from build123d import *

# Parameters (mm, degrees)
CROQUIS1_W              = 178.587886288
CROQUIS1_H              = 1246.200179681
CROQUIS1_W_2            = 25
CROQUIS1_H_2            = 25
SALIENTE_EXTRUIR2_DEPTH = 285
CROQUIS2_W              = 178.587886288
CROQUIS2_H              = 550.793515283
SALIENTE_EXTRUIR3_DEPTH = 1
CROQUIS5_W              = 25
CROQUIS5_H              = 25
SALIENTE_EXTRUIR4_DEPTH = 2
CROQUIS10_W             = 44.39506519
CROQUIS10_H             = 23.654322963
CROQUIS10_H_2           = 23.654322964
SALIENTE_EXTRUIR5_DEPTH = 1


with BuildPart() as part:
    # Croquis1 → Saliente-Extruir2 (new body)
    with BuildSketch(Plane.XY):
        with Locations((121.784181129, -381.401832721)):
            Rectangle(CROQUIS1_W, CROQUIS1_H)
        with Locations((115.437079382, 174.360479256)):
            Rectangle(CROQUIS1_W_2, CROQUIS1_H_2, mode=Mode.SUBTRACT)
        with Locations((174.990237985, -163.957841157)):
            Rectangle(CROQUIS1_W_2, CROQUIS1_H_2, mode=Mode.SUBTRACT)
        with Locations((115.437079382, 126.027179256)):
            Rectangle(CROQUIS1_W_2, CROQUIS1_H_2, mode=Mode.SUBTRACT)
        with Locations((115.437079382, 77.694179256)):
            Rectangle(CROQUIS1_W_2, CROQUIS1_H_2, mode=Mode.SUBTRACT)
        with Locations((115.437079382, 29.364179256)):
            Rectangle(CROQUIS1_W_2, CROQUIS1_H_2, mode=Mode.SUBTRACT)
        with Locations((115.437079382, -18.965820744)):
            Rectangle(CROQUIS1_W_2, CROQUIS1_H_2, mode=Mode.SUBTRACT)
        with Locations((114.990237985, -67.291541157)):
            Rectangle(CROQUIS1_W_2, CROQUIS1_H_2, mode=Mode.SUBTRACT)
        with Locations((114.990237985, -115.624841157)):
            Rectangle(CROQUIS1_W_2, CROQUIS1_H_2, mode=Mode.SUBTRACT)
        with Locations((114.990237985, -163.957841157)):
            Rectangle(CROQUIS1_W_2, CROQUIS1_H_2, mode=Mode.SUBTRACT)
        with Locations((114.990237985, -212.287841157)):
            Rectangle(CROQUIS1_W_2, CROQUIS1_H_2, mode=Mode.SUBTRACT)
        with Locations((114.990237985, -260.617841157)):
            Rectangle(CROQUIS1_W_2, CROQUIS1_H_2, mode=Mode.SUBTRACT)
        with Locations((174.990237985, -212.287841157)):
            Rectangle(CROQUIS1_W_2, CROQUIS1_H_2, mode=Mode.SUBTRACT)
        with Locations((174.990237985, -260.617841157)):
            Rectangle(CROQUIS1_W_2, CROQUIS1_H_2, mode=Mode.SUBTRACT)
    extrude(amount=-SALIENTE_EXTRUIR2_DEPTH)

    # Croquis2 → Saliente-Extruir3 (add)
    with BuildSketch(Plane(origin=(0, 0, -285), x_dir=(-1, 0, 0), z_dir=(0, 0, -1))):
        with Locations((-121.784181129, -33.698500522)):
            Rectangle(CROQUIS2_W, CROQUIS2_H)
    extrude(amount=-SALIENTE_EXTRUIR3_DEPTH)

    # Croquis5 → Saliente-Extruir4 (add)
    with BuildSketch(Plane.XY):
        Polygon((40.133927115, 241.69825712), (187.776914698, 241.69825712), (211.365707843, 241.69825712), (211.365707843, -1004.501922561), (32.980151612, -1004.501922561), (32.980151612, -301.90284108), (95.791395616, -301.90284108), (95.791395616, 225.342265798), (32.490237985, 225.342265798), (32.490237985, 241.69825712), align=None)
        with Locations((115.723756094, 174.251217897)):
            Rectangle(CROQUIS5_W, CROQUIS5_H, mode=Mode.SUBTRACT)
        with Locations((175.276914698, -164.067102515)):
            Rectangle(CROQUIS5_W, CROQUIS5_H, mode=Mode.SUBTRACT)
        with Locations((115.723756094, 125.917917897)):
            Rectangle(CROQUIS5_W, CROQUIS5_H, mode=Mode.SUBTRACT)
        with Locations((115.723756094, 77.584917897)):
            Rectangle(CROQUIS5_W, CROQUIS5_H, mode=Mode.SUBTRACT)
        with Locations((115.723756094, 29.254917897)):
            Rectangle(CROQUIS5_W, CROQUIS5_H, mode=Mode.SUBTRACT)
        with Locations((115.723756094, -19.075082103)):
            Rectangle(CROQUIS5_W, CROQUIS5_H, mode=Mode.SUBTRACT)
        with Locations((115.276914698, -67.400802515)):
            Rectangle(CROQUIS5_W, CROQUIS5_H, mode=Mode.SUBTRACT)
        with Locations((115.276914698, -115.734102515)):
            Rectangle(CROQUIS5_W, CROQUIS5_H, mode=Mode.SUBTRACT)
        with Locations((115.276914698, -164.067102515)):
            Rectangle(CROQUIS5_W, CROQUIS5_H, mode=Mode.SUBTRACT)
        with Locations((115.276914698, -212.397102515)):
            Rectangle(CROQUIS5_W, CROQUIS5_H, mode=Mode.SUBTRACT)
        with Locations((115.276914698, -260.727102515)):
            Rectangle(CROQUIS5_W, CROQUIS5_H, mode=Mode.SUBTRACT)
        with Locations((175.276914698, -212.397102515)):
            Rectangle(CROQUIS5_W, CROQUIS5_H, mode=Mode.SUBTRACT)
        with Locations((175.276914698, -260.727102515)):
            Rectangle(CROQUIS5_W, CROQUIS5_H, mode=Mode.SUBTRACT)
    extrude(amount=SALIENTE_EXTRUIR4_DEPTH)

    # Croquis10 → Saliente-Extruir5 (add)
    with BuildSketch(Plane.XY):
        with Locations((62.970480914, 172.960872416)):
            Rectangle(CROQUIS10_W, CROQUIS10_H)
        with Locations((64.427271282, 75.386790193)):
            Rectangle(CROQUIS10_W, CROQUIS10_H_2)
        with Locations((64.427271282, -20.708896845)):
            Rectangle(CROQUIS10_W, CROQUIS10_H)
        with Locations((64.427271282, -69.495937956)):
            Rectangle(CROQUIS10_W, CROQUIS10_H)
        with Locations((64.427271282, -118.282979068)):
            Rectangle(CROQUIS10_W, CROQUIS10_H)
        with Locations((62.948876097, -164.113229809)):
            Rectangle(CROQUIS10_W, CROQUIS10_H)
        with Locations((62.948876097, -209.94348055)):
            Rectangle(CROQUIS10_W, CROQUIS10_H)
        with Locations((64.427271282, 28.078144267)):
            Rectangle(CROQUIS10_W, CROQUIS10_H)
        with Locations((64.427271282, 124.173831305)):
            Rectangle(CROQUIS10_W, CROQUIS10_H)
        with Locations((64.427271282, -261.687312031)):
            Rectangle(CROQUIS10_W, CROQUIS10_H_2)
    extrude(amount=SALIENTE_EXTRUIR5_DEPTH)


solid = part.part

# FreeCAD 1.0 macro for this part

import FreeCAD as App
import Part
import Sketcher
from FreeCAD import Vector
Q = App.Units.Quantity

doc = App.newDocument("Part")
body = doc.addObject("PartDesign::Body", "Body")

# Sketch on XY plane
sketch1 = body.newObject("Sketcher::SketchObject", "Sketch")
sketch1.AttachmentSupport = (doc.getObject("XY_Plane"), [""])
sketch1.MapMode = "FlatFace"
sketch1.addGeometry(Part.LineSegment(Vector(32, 242, 0), Vector(32, -1005, 0)), False)
sketch1.addGeometry(Part.LineSegment(Vector(32, -1005, 0), Vector(211, -1005, 0)), False)
sketch1.addGeometry(Part.LineSegment(Vector(211, -1005, 0), Vector(211, 242, 0)), False)
sketch1.addGeometry(Part.LineSegment(Vector(211, 242, 0), Vector(32, 242, 0)), False)
sketch1.addGeometry(Part.LineSegment(Vector(127, -273, 0), Vector(102, -273, 0)), False)
sketch1.addGeometry(Part.LineSegment(Vector(102, -273, 0), Vector(102, -248, 0)), False)
sketch1.addGeometry(Part.LineSegment(Vector(102, -248, 0), Vector(127, -248, 0)), False)
sketch1.addGeometry(Part.LineSegment(Vector(127, -248, 0), Vector(127, -273, 0)), False)
sketch1.addGeometry(Part.LineSegment(Vector(127, -225, 0), Vector(102, -225, 0)), False)
sketch1.addGeometry(Part.LineSegment(Vector(102, -225, 0), Vector(102, -200, 0)), False)
sketch1.addGeometry(Part.LineSegment(Vector(102, -200, 0), Vector(127, -200, 0)), False)
sketch1.addGeometry(Part.LineSegment(Vector(127, -200, 0), Vector(127, -225, 0)), False)
sketch1.addGeometry(Part.LineSegment(Vector(127, -176, 0), Vector(102, -176, 0)), False)
sketch1.addGeometry(Part.LineSegment(Vector(102, -176, 0), Vector(102, -151, 0)), False)
sketch1.addGeometry(Part.LineSegment(Vector(102, -151, 0), Vector(127, -151, 0)), False)
sketch1.addGeometry(Part.LineSegment(Vector(127, -151, 0), Vector(127, -176, 0)), False)
sketch1.addGeometry(Part.LineSegment(Vector(127, -128, 0), Vector(102, -128, 0)), False)
sketch1.addGeometry(Part.LineSegment(Vector(102, -128, 0), Vector(102, -103, 0)), False)
sketch1.addGeometry(Part.LineSegment(Vector(102, -103, 0), Vector(127, -103, 0)), False)
sketch1.addGeometry(Part.LineSegment(Vector(127, -103, 0), Vector(127, -128, 0)), False)
sketch1.addGeometry(Part.LineSegment(Vector(127, -80, 0), Vector(102, -80, 0)), False)
sketch1.addGeometry(Part.LineSegment(Vector(102, -80, 0), Vector(102, -55, 0)), False)
sketch1.addGeometry(Part.LineSegment(Vector(102, -55, 0), Vector(127, -55, 0)), False)
sketch1.addGeometry(Part.LineSegment(Vector(127, -55, 0), Vector(127, -80, 0)), False)
sketch1.addGeometry(Part.LineSegment(Vector(187, -273, 0), Vector(162, -273, 0)), False)
sketch1.addGeometry(Part.LineSegment(Vector(162, -273, 0), Vector(162, -248, 0)), False)
sketch1.addGeometry(Part.LineSegment(Vector(162, -248, 0), Vector(187, -248, 0)), False)
sketch1.addGeometry(Part.LineSegment(Vector(187, -248, 0), Vector(187, -273, 0)), False)
sketch1.addGeometry(Part.LineSegment(Vector(187, -225, 0), Vector(162, -225, 0)), False)
sketch1.addGeometry(Part.LineSegment(Vector(162, -225, 0), Vector(162, -200, 0)), False)
sketch1.addGeometry(Part.LineSegment(Vector(162, -200, 0), Vector(187, -200, 0)), False)
sketch1.addGeometry(Part.LineSegment(Vector(187, -200, 0), Vector(187, -225, 0)), False)
sketch1.addGeometry(Part.LineSegment(Vector(187, -176, 0), Vector(162, -176, 0)), False)
sketch1.addGeometry(Part.LineSegment(Vector(162, -176, 0), Vector(162, -151, 0)), False)
sketch1.addGeometry(Part.LineSegment(Vector(162, -151, 0), Vector(187, -151, 0)), False)
sketch1.addGeometry(Part.LineSegment(Vector(187, -151, 0), Vector(187, -176, 0)), False)
sketch1.addGeometry(Part.LineSegment(Vector(128, -31, 0), Vector(103, -31, 0)), False)
sketch1.addGeometry(Part.LineSegment(Vector(103, -31, 0), Vector(103, -6, 0)), False)
sketch1.addGeometry(Part.LineSegment(Vector(103, -6, 0), Vector(128, -6, 0)), False)
sketch1.addGeometry(Part.LineSegment(Vector(128, -6, 0), Vector(128, -31, 0)), False)
sketch1.addGeometry(Part.LineSegment(Vector(128, 17, 0), Vector(103, 17, 0)), False)
sketch1.addGeometry(Part.LineSegment(Vector(103, 17, 0), Vector(103, 42, 0)), False)
sketch1.addGeometry(Part.LineSegment(Vector(103, 42, 0), Vector(128, 42, 0)), False)
sketch1.addGeometry(Part.LineSegment(Vector(128, 42, 0), Vector(128, 17, 0)), False)
sketch1.addGeometry(Part.LineSegment(Vector(128, 65, 0), Vector(103, 65, 0)), False)
sketch1.addGeometry(Part.LineSegment(Vector(103, 65, 0), Vector(103, 90, 0)), False)
sketch1.addGeometry(Part.LineSegment(Vector(103, 90, 0), Vector(128, 90, 0)), False)
sketch1.addGeometry(Part.LineSegment(Vector(128, 90, 0), Vector(128, 65, 0)), False)
sketch1.addGeometry(Part.LineSegment(Vector(128, 114, 0), Vector(103, 114, 0)), False)
sketch1.addGeometry(Part.LineSegment(Vector(103, 114, 0), Vector(103, 139, 0)), False)
sketch1.addGeometry(Part.LineSegment(Vector(103, 139, 0), Vector(128, 139, 0)), False)
sketch1.addGeometry(Part.LineSegment(Vector(128, 139, 0), Vector(128, 114, 0)), False)
sketch1.addGeometry(Part.LineSegment(Vector(128, 162, 0), Vector(103, 162, 0)), False)
sketch1.addGeometry(Part.LineSegment(Vector(103, 162, 0), Vector(103, 187, 0)), False)
sketch1.addGeometry(Part.LineSegment(Vector(103, 187, 0), Vector(128, 187, 0)), False)
sketch1.addGeometry(Part.LineSegment(Vector(128, 187, 0), Vector(128, 162, 0)), False)
sketch1.addConstraint(Sketcher.Constraint("Coincident", 0, 2, 1, 1))
sketch1.addConstraint(Sketcher.Constraint("Coincident", 1, 2, 2, 1))
sketch1.addConstraint(Sketcher.Constraint("Coincident", 2, 2, 3, 1))
sketch1.addConstraint(Sketcher.Constraint("Coincident", 3, 2, 0, 1))
sketch1.addConstraint(Sketcher.Constraint("Coincident", 4, 2, 5, 1))
sketch1.addConstraint(Sketcher.Constraint("Coincident", 5, 2, 6, 1))
sketch1.addConstraint(Sketcher.Constraint("Coincident", 6, 2, 7, 1))
sketch1.addConstraint(Sketcher.Constraint("Coincident", 7, 2, 4, 1))
sketch1.addConstraint(Sketcher.Constraint("Coincident", 8, 2, 9, 1))
sketch1.addConstraint(Sketcher.Constraint("Coincident", 9, 2, 10, 1))
sketch1.addConstraint(Sketcher.Constraint("Coincident", 10, 2, 11, 1))
sketch1.addConstraint(Sketcher.Constraint("Coincident", 11, 2, 8, 1))
sketch1.addConstraint(Sketcher.Constraint("Coincident", 12, 2, 13, 1))
sketch1.addConstraint(Sketcher.Constraint("Coincident", 13, 2, 14, 1))
sketch1.addConstraint(Sketcher.Constraint("Coincident", 14, 2, 15, 1))
sketch1.addConstraint(Sketcher.Constraint("Coincident", 15, 2, 12, 1))
sketch1.addConstraint(Sketcher.Constraint("Coincident", 16, 2, 17, 1))
sketch1.addConstraint(Sketcher.Constraint("Coincident", 17, 2, 18, 1))
sketch1.addConstraint(Sketcher.Constraint("Coincident", 18, 2, 19, 1))
sketch1.addConstraint(Sketcher.Constraint("Coincident", 19, 2, 16, 1))
sketch1.addConstraint(Sketcher.Constraint("Coincident", 20, 2, 21, 1))
sketch1.addConstraint(Sketcher.Constraint("Coincident", 21, 2, 22, 1))
sketch1.addConstraint(Sketcher.Constraint("Coincident", 22, 2, 23, 1))
sketch1.addConstraint(Sketcher.Constraint("Coincident", 23, 2, 20, 1))
sketch1.addConstraint(Sketcher.Constraint("Coincident", 24, 2, 25, 1))
sketch1.addConstraint(Sketcher.Constraint("Coincident", 25, 2, 26, 1))
sketch1.addConstraint(Sketcher.Constraint("Coincident", 26, 2, 27, 1))
sketch1.addConstraint(Sketcher.Constraint("Coincident", 27, 2, 24, 1))
sketch1.addConstraint(Sketcher.Constraint("Coincident", 28, 2, 29, 1))
sketch1.addConstraint(Sketcher.Constraint("Coincident", 29, 2, 30, 1))
sketch1.addConstraint(Sketcher.Constraint("Coincident", 30, 2, 31, 1))
sketch1.addConstraint(Sketcher.Constraint("Coincident", 31, 2, 28, 1))
sketch1.addConstraint(Sketcher.Constraint("Coincident", 32, 2, 33, 1))
sketch1.addConstraint(Sketcher.Constraint("Coincident", 33, 2, 34, 1))
sketch1.addConstraint(Sketcher.Constraint("Coincident", 34, 2, 35, 1))
sketch1.addConstraint(Sketcher.Constraint("Coincident", 35, 2, 32, 1))
sketch1.addConstraint(Sketcher.Constraint("Coincident", 36, 2, 37, 1))
sketch1.addConstraint(Sketcher.Constraint("Coincident", 37, 2, 38, 1))
sketch1.addConstraint(Sketcher.Constraint("Coincident", 38, 2, 39, 1))
sketch1.addConstraint(Sketcher.Constraint("Coincident", 39, 2, 36, 1))
sketch1.addConstraint(Sketcher.Constraint("Coincident", 40, 2, 41, 1))
sketch1.addConstraint(Sketcher.Constraint("Coincident", 41, 2, 42, 1))
sketch1.addConstraint(Sketcher.Constraint("Coincident", 42, 2, 43, 1))
sketch1.addConstraint(Sketcher.Constraint("Coincident", 43, 2, 40, 1))
sketch1.addConstraint(Sketcher.Constraint("Coincident", 44, 2, 45, 1))
sketch1.addConstraint(Sketcher.Constraint("Coincident", 45, 2, 46, 1))
sketch1.addConstraint(Sketcher.Constraint("Coincident", 46, 2, 47, 1))
sketch1.addConstraint(Sketcher.Constraint("Coincident", 47, 2, 44, 1))
sketch1.addConstraint(Sketcher.Constraint("Coincident", 48, 2, 49, 1))
sketch1.addConstraint(Sketcher.Constraint("Coincident", 49, 2, 50, 1))
sketch1.addConstraint(Sketcher.Constraint("Coincident", 50, 2, 51, 1))
sketch1.addConstraint(Sketcher.Constraint("Coincident", 51, 2, 48, 1))
sketch1.addConstraint(Sketcher.Constraint("Coincident", 52, 2, 53, 1))
sketch1.addConstraint(Sketcher.Constraint("Coincident", 53, 2, 54, 1))
sketch1.addConstraint(Sketcher.Constraint("Coincident", 54, 2, 55, 1))
sketch1.addConstraint(Sketcher.Constraint("Coincident", 55, 2, 52, 1))
sketch1.addConstraint(Sketcher.Constraint("Vertical", 0))
sketch1.addConstraint(Sketcher.Constraint("Horizontal", 1))
sketch1.addConstraint(Sketcher.Constraint("Vertical", 2))
sketch1.addConstraint(Sketcher.Constraint("Horizontal", 3))
sketch1.addConstraint(Sketcher.Constraint("Horizontal", 4))
sketch1.addConstraint(Sketcher.Constraint("Vertical", 5))
sketch1.addConstraint(Sketcher.Constraint("Horizontal", 6))
sketch1.addConstraint(Sketcher.Constraint("Vertical", 7))
sketch1.addConstraint(Sketcher.Constraint("Horizontal", 8))
sketch1.addConstraint(Sketcher.Constraint("Vertical", 9))
sketch1.addConstraint(Sketcher.Constraint("Horizontal", 10))
sketch1.addConstraint(Sketcher.Constraint("Vertical", 11))
sketch1.addConstraint(Sketcher.Constraint("Horizontal", 12))
sketch1.addConstraint(Sketcher.Constraint("Vertical", 13))
sketch1.addConstraint(Sketcher.Constraint("Horizontal", 14))
sketch1.addConstraint(Sketcher.Constraint("Vertical", 15))
sketch1.addConstraint(Sketcher.Constraint("Horizontal", 16))
sketch1.addConstraint(Sketcher.Constraint("Vertical", 17))
sketch1.addConstraint(Sketcher.Constraint("Horizontal", 18))
sketch1.addConstraint(Sketcher.Constraint("Vertical", 19))
sketch1.addConstraint(Sketcher.Constraint("Horizontal", 20))
sketch1.addConstraint(Sketcher.Constraint("Vertical", 21))
sketch1.addConstraint(Sketcher.Constraint("Horizontal", 22))
sketch1.addConstraint(Sketcher.Constraint("Vertical", 23))
sketch1.addConstraint(Sketcher.Constraint("Horizontal", 24))
sketch1.addConstraint(Sketcher.Constraint("Vertical", 25))
sketch1.addConstraint(Sketcher.Constraint("Horizontal", 26))
sketch1.addConstraint(Sketcher.Constraint("Vertical", 27))
sketch1.addConstraint(Sketcher.Constraint("Horizontal", 28))
sketch1.addConstraint(Sketcher.Constraint("Vertical", 29))
sketch1.addConstraint(Sketcher.Constraint("Horizontal", 30))
sketch1.addConstraint(Sketcher.Constraint("Vertical", 31))
sketch1.addConstraint(Sketcher.Constraint("Horizontal", 32))
sketch1.addConstraint(Sketcher.Constraint("Vertical", 33))
sketch1.addConstraint(Sketcher.Constraint("Horizontal", 34))
sketch1.addConstraint(Sketcher.Constraint("Vertical", 35))
sketch1.addConstraint(Sketcher.Constraint("Horizontal", 36))
sketch1.addConstraint(Sketcher.Constraint("Vertical", 37))
sketch1.addConstraint(Sketcher.Constraint("Horizontal", 38))
sketch1.addConstraint(Sketcher.Constraint("Vertical", 39))
sketch1.addConstraint(Sketcher.Constraint("Horizontal", 40))
sketch1.addConstraint(Sketcher.Constraint("Vertical", 41))
sketch1.addConstraint(Sketcher.Constraint("Horizontal", 42))
sketch1.addConstraint(Sketcher.Constraint("Vertical", 43))
sketch1.addConstraint(Sketcher.Constraint("Horizontal", 44))
sketch1.addConstraint(Sketcher.Constraint("Vertical", 45))
sketch1.addConstraint(Sketcher.Constraint("Horizontal", 46))
sketch1.addConstraint(Sketcher.Constraint("Vertical", 47))
sketch1.addConstraint(Sketcher.Constraint("Horizontal", 48))
sketch1.addConstraint(Sketcher.Constraint("Vertical", 49))
sketch1.addConstraint(Sketcher.Constraint("Horizontal", 50))
sketch1.addConstraint(Sketcher.Constraint("Vertical", 51))
sketch1.addConstraint(Sketcher.Constraint("Horizontal", 52))
sketch1.addConstraint(Sketcher.Constraint("Vertical", 53))
sketch1.addConstraint(Sketcher.Constraint("Horizontal", 54))
sketch1.addConstraint(Sketcher.Constraint("Vertical", 55))
sketch1.addConstraint(Sketcher.Constraint("Horizontal", 7, 2, 24, 2))
sketch1.addConstraint(Sketcher.Constraint("Horizontal", 6, 2, 25, 2))
sketch1.addConstraint(Sketcher.Constraint("Horizontal", 11, 2, 28, 2))
sketch1.addConstraint(Sketcher.Constraint("Horizontal", 10, 2, 29, 2))
sketch1.addConstraint(Sketcher.Constraint("Horizontal", 15, 2, 32, 2))
sketch1.addConstraint(Sketcher.Constraint("Horizontal", 14, 2, 33, 2))
sketch1.addConstraint(Sketcher.Constraint("Vertical", 5, 2, 8, 2))
sketch1.addConstraint(Sketcher.Constraint("Vertical", 7, 2, 10, 2))
sketch1.addConstraint(Sketcher.Constraint("Vertical", 9, 2, 12, 2))
sketch1.addConstraint(Sketcher.Constraint("Vertical", 11, 2, 14, 2))
sketch1.addConstraint(Sketcher.Constraint("Vertical", 13, 2, 16, 2))
sketch1.addConstraint(Sketcher.Constraint("Vertical", 15, 2, 18, 2))
sketch1.addConstraint(Sketcher.Constraint("Vertical", 17, 2, 20, 2))
sketch1.addConstraint(Sketcher.Constraint("Vertical", 19, 2, 22, 2))
sketch1.addConstraint(Sketcher.Constraint("Vertical", 25, 2, 28, 2))
sketch1.addConstraint(Sketcher.Constraint("Vertical", 27, 2, 30, 2))
sketch1.addConstraint(Sketcher.Constraint("Vertical", 29, 2, 32, 2))
sketch1.addConstraint(Sketcher.Constraint("Vertical", 31, 2, 34, 2))
sketch1.addConstraint(Sketcher.Constraint("Vertical", 37, 2, 40, 2))
sketch1.addConstraint(Sketcher.Constraint("Vertical", 39, 2, 42, 2))
sketch1.addConstraint(Sketcher.Constraint("Vertical", 41, 2, 44, 2))
sketch1.addConstraint(Sketcher.Constraint("Vertical", 43, 2, 46, 2))
sketch1.addConstraint(Sketcher.Constraint("Vertical", 45, 2, 48, 2))
sketch1.addConstraint(Sketcher.Constraint("Vertical", 47, 2, 50, 2))
sketch1.addConstraint(Sketcher.Constraint("Vertical", 49, 2, 52, 2))
sketch1.addConstraint(Sketcher.Constraint("Vertical", 51, 2, 54, 2))
sketch1.addConstraint(Sketcher.Constraint("Equal", 22, 24))
sketch1.addConstraint(Sketcher.Constraint("Equal", 34, 36))
sketch1.addConstraint(Sketcher.Constraint("Equal", 54, 5))
sketch1.addConstraint(Sketcher.Constraint("Equal", 7, 9))
sketch1.addConstraint(Sketcher.Constraint("Equal", 11, 13))
sketch1.addConstraint(Sketcher.Constraint("Equal", 15, 17))
sketch1.addConstraint(Sketcher.Constraint("Equal", 19, 21))
sketch1.addConstraint(Sketcher.Constraint("Equal", 35, 37))
sketch1.addConstraint(Sketcher.Constraint("Equal", 39, 41))
sketch1.addConstraint(Sketcher.Constraint("Equal", 43, 45))
sketch1.addConstraint(Sketcher.Constraint("Equal", 47, 49))
sketch1.addConstraint(Sketcher.Constraint("Equal", 51, 53))
sketch1.addConstraint(Sketcher.Constraint("DistanceX", 4, 2, 4, 1, Q("25 mm")))
sketch1.addConstraint(Sketcher.Constraint("DistanceX", 3, 2, 4, 2, Q("70 mm")))
sketch1.addConstraint(Sketcher.Constraint("DistanceX", 7, 2, 24, 2, Q("35 mm")))
sketch1.addConstraint(Sketcher.Constraint("DistanceY", 5, 2, 8, 2, Q("23.33 mm")))
sketch1.addConstraint(Sketcher.Constraint("DistanceY", 9, 2, 12, 2, Q("23.33 mm")))
sketch1.addConstraint(Sketcher.Constraint("DistanceY", 37, 2, 40, 2, Q("23.33 mm")))
sketch1.addConstraint(Sketcher.Constraint("DistanceY", 41, 2, 44, 2, Q("23.33 mm")))
sketch1.addConstraint(Sketcher.Constraint("DistanceY", 13, 2, 16, 2, Q("23.333 mm")))
sketch1.addConstraint(Sketcher.Constraint("DistanceY", 45, 2, 48, 2, Q("23.333 mm")))
sketch1.addConstraint(Sketcher.Constraint("DistanceY", 0, 2, 0, 1, Q("1246.20018 mm")))
sketch1.addConstraint(Sketcher.Constraint("DistanceY", 4, 2, 3, 2, Q("514.816098 mm")))
sketch1.addConstraint(Sketcher.Constraint("DistanceY", 17, 2, 20, 2, Q("23.3333 mm")))
sketch1.addConstraint(Sketcher.Constraint("DistanceY", 49, 2, 52, 2, Q("23.3333 mm")))
sketch1.addConstraint(Sketcher.Constraint("DistanceX", 1, 1, 1, 2, Q("178.587886 mm")))
sketch1.addConstraint(Sketcher.Constraint("DistanceY", 4, 2, -1, 1, Q("273.117841 mm")))
sketch1.addConstraint(Sketcher.Constraint("DistanceX", -1, 1, 36, 2, Q("102.937079 mm")))
sketch1.addConstraint(Sketcher.Constraint("DistanceY", 36, 2, -1, 1, Q("31.465821 mm")))
sketch1.addConstraint(Sketcher.Constraint("DistanceX", 21, 2, 36, 2, Q("0.446841 mm")))
pad1 = body.newObject("PartDesign::Pad", "Pad")
pad1.Profile = sketch1
pad1.Length = 285
pad1.Reversed = True

# Sketch on XY plane
sketch2 = body.newObject("Sketcher::SketchObject", "Sketch001")
sketch2.AttachmentSupport = (doc.getObject("XY_Plane"), [""])
sketch2.MapMode = "FlatFace"
sketch2.AttachmentOffset = App.Placement(Vector(0, 0, -285), App.Rotation())
sketch2.addGeometry(Part.LineSegment(Vector(211, 242, 0), Vector(211, -309, 0)), False)
sketch2.addGeometry(Part.LineSegment(Vector(211, -309, 0), Vector(32, -309, 0)), False)
sketch2.addGeometry(Part.LineSegment(Vector(32, -309, 0), Vector(32, 242, 0)), False)
sketch2.addGeometry(Part.LineSegment(Vector(32, 242, 0), Vector(211, 242, 0)), False)
sketch2.addConstraint(Sketcher.Constraint("Coincident", 0, 2, 1, 1))
sketch2.addConstraint(Sketcher.Constraint("Coincident", 1, 2, 2, 1))
sketch2.addConstraint(Sketcher.Constraint("Coincident", 2, 2, 3, 1))
sketch2.addConstraint(Sketcher.Constraint("Coincident", 3, 2, 0, 1))
sketch2.addConstraint(Sketcher.Constraint("Vertical", 0))
sketch2.addConstraint(Sketcher.Constraint("Horizontal", 1))
sketch2.addConstraint(Sketcher.Constraint("Vertical", 2))
sketch2.addConstraint(Sketcher.Constraint("Horizontal", 3))
sketch2.addConstraint(Sketcher.Constraint("DistanceX", 1, 2, 1, 1, Q("178.587886 mm")))
sketch2.addConstraint(Sketcher.Constraint("DistanceY", 0, 2, 0, 1, Q("550.793515 mm")))
sketch2.addConstraint(Sketcher.Constraint("DistanceY", 0, 2, -1, 1, Q("309.095258 mm")))
sketch2.addConstraint(Sketcher.Constraint("DistanceX", -1, 1, 0, 2, Q("211.078124 mm")))
pad2 = body.newObject("PartDesign::Pad", "Pad001")
pad2.Profile = sketch2
pad2.Length = 1

# Sketch on XY plane
sketch3 = body.newObject("Sketcher::SketchObject", "Sketch002")
sketch3.AttachmentSupport = (doc.getObject("XY_Plane"), [""])
sketch3.MapMode = "FlatFace"
sketch3.addGeometry(Part.LineSegment(Vector(211, 242, 0), Vector(32, 242, 0)), False)
sketch3.addGeometry(Part.LineSegment(Vector(32, 242, 0), Vector(32, 225, 0)), False)
sketch3.addGeometry(Part.LineSegment(Vector(32, 225, 0), Vector(96, 225, 0)), False)
sketch3.addGeometry(Part.LineSegment(Vector(96, 225, 0), Vector(96, -302, 0)), False)
sketch3.addGeometry(Part.LineSegment(Vector(96, -302, 0), Vector(33, -302, 0)), False)
sketch3.addGeometry(Part.LineSegment(Vector(33, -302, 0), Vector(33, -1005, 0)), False)
sketch3.addGeometry(Part.LineSegment(Vector(33, -1005, 0), Vector(211, -1005, 0)), False)
sketch3.addGeometry(Part.LineSegment(Vector(211, -1005, 0), Vector(211, 242, 0)), False)
sketch3.addGeometry(Part.LineSegment(Vector(163, -273, 0), Vector(163, -248, 0)), False)
sketch3.addGeometry(Part.LineSegment(Vector(163, -248, 0), Vector(188, -248, 0)), False)
sketch3.addGeometry(Part.LineSegment(Vector(188, -248, 0), Vector(188, -273, 0)), False)
sketch3.addGeometry(Part.LineSegment(Vector(188, -273, 0), Vector(163, -273, 0)), False)
sketch3.addGeometry(Part.LineSegment(Vector(163, -225, 0), Vector(163, -200, 0)), False)
sketch3.addGeometry(Part.LineSegment(Vector(163, -200, 0), Vector(188, -200, 0)), False)
sketch3.addGeometry(Part.LineSegment(Vector(188, -200, 0), Vector(188, -225, 0)), False)
sketch3.addGeometry(Part.LineSegment(Vector(188, -225, 0), Vector(163, -225, 0)), False)
sketch3.addGeometry(Part.LineSegment(Vector(163, -177, 0), Vector(163, -152, 0)), False)
sketch3.addGeometry(Part.LineSegment(Vector(163, -152, 0), Vector(188, -152, 0)), False)
sketch3.addGeometry(Part.LineSegment(Vector(188, -152, 0), Vector(188, -177, 0)), False)
sketch3.addGeometry(Part.LineSegment(Vector(188, -177, 0), Vector(163, -177, 0)), False)
sketch3.addGeometry(Part.LineSegment(Vector(103, -273, 0), Vector(103, -248, 0)), False)
sketch3.addGeometry(Part.LineSegment(Vector(103, -248, 0), Vector(128, -248, 0)), False)
sketch3.addGeometry(Part.LineSegment(Vector(128, -248, 0), Vector(128, -273, 0)), False)
sketch3.addGeometry(Part.LineSegment(Vector(128, -273, 0), Vector(103, -273, 0)), False)
sketch3.addGeometry(Part.LineSegment(Vector(103, -225, 0), Vector(103, -200, 0)), False)
sketch3.addGeometry(Part.LineSegment(Vector(103, -200, 0), Vector(128, -200, 0)), False)
sketch3.addGeometry(Part.LineSegment(Vector(128, -200, 0), Vector(128, -225, 0)), False)
sketch3.addGeometry(Part.LineSegment(Vector(128, -225, 0), Vector(103, -225, 0)), False)
sketch3.addGeometry(Part.LineSegment(Vector(103, -177, 0), Vector(103, -152, 0)), False)
sketch3.addGeometry(Part.LineSegment(Vector(103, -152, 0), Vector(128, -152, 0)), False)
sketch3.addGeometry(Part.LineSegment(Vector(128, -152, 0), Vector(128, -177, 0)), False)
sketch3.addGeometry(Part.LineSegment(Vector(128, -177, 0), Vector(103, -177, 0)), False)
sketch3.addGeometry(Part.LineSegment(Vector(103, -128, 0), Vector(103, -103, 0)), False)
sketch3.addGeometry(Part.LineSegment(Vector(103, -103, 0), Vector(128, -103, 0)), False)
sketch3.addGeometry(Part.LineSegment(Vector(128, -103, 0), Vector(128, -128, 0)), False)
sketch3.addGeometry(Part.LineSegment(Vector(128, -128, 0), Vector(103, -128, 0)), False)
sketch3.addGeometry(Part.LineSegment(Vector(103, -80, 0), Vector(103, -55, 0)), False)
sketch3.addGeometry(Part.LineSegment(Vector(103, -55, 0), Vector(128, -55, 0)), False)
sketch3.addGeometry(Part.LineSegment(Vector(128, -55, 0), Vector(128, -80, 0)), False)
sketch3.addGeometry(Part.LineSegment(Vector(128, -80, 0), Vector(103, -80, 0)), False)
sketch3.addGeometry(Part.LineSegment(Vector(103, -32, 0), Vector(103, -7, 0)), False)
sketch3.addGeometry(Part.LineSegment(Vector(103, -7, 0), Vector(128, -7, 0)), False)
sketch3.addGeometry(Part.LineSegment(Vector(128, -7, 0), Vector(128, -32, 0)), False)
sketch3.addGeometry(Part.LineSegment(Vector(128, -32, 0), Vector(103, -32, 0)), False)
sketch3.addGeometry(Part.LineSegment(Vector(103, 17, 0), Vector(103, 42, 0)), False)
sketch3.addGeometry(Part.LineSegment(Vector(103, 42, 0), Vector(128, 42, 0)), False)
sketch3.addGeometry(Part.LineSegment(Vector(128, 42, 0), Vector(128, 17, 0)), False)
sketch3.addGeometry(Part.LineSegment(Vector(128, 17, 0), Vector(103, 17, 0)), False)
sketch3.addGeometry(Part.LineSegment(Vector(103, 65, 0), Vector(103, 90, 0)), False)
sketch3.addGeometry(Part.LineSegment(Vector(103, 90, 0), Vector(128, 90, 0)), False)
sketch3.addGeometry(Part.LineSegment(Vector(128, 90, 0), Vector(128, 65, 0)), False)
sketch3.addGeometry(Part.LineSegment(Vector(128, 65, 0), Vector(103, 65, 0)), False)
sketch3.addGeometry(Part.LineSegment(Vector(103, 113, 0), Vector(103, 138, 0)), False)
sketch3.addGeometry(Part.LineSegment(Vector(103, 138, 0), Vector(128, 138, 0)), False)
sketch3.addGeometry(Part.LineSegment(Vector(128, 138, 0), Vector(128, 113, 0)), False)
sketch3.addGeometry(Part.LineSegment(Vector(128, 113, 0), Vector(103, 113, 0)), False)
sketch3.addGeometry(Part.LineSegment(Vector(103, 162, 0), Vector(103, 187, 0)), False)
sketch3.addGeometry(Part.LineSegment(Vector(103, 187, 0), Vector(128, 187, 0)), False)
sketch3.addGeometry(Part.LineSegment(Vector(128, 187, 0), Vector(128, 162, 0)), False)
sketch3.addGeometry(Part.LineSegment(Vector(128, 162, 0), Vector(103, 162, 0)), False)
sketch3.addConstraint(Sketcher.Constraint("Coincident", 0, 2, 1, 1))
sketch3.addConstraint(Sketcher.Constraint("Coincident", 1, 2, 2, 1))
sketch3.addConstraint(Sketcher.Constraint("Coincident", 2, 2, 3, 1))
sketch3.addConstraint(Sketcher.Constraint("Coincident", 3, 2, 4, 1))
sketch3.addConstraint(Sketcher.Constraint("Coincident", 4, 2, 5, 1))
sketch3.addConstraint(Sketcher.Constraint("Coincident", 5, 2, 6, 1))
sketch3.addConstraint(Sketcher.Constraint("Coincident", 6, 2, 7, 1))
sketch3.addConstraint(Sketcher.Constraint("Coincident", 7, 2, 0, 1))
sketch3.addConstraint(Sketcher.Constraint("Coincident", 8, 2, 9, 1))
sketch3.addConstraint(Sketcher.Constraint("Coincident", 9, 2, 10, 1))
sketch3.addConstraint(Sketcher.Constraint("Coincident", 10, 2, 11, 1))
sketch3.addConstraint(Sketcher.Constraint("Coincident", 11, 2, 8, 1))
sketch3.addConstraint(Sketcher.Constraint("Coincident", 12, 2, 13, 1))
sketch3.addConstraint(Sketcher.Constraint("Coincident", 13, 2, 14, 1))
sketch3.addConstraint(Sketcher.Constraint("Coincident", 14, 2, 15, 1))
sketch3.addConstraint(Sketcher.Constraint("Coincident", 15, 2, 12, 1))
sketch3.addConstraint(Sketcher.Constraint("Coincident", 16, 2, 17, 1))
sketch3.addConstraint(Sketcher.Constraint("Coincident", 17, 2, 18, 1))
sketch3.addConstraint(Sketcher.Constraint("Coincident", 18, 2, 19, 1))
sketch3.addConstraint(Sketcher.Constraint("Coincident", 19, 2, 16, 1))
sketch3.addConstraint(Sketcher.Constraint("Coincident", 20, 2, 21, 1))
sketch3.addConstraint(Sketcher.Constraint("Coincident", 21, 2, 22, 1))
sketch3.addConstraint(Sketcher.Constraint("Coincident", 22, 2, 23, 1))
sketch3.addConstraint(Sketcher.Constraint("Coincident", 23, 2, 20, 1))
sketch3.addConstraint(Sketcher.Constraint("Coincident", 24, 2, 25, 1))
sketch3.addConstraint(Sketcher.Constraint("Coincident", 25, 2, 26, 1))
sketch3.addConstraint(Sketcher.Constraint("Coincident", 26, 2, 27, 1))
sketch3.addConstraint(Sketcher.Constraint("Coincident", 27, 2, 24, 1))
sketch3.addConstraint(Sketcher.Constraint("Coincident", 28, 2, 29, 1))
sketch3.addConstraint(Sketcher.Constraint("Coincident", 29, 2, 30, 1))
sketch3.addConstraint(Sketcher.Constraint("Coincident", 30, 2, 31, 1))
sketch3.addConstraint(Sketcher.Constraint("Coincident", 31, 2, 28, 1))
sketch3.addConstraint(Sketcher.Constraint("Coincident", 32, 2, 33, 1))
sketch3.addConstraint(Sketcher.Constraint("Coincident", 33, 2, 34, 1))
sketch3.addConstraint(Sketcher.Constraint("Coincident", 34, 2, 35, 1))
sketch3.addConstraint(Sketcher.Constraint("Coincident", 35, 2, 32, 1))
sketch3.addConstraint(Sketcher.Constraint("Coincident", 36, 2, 37, 1))
sketch3.addConstraint(Sketcher.Constraint("Coincident", 37, 2, 38, 1))
sketch3.addConstraint(Sketcher.Constraint("Coincident", 38, 2, 39, 1))
sketch3.addConstraint(Sketcher.Constraint("Coincident", 39, 2, 36, 1))
sketch3.addConstraint(Sketcher.Constraint("Coincident", 40, 2, 41, 1))
sketch3.addConstraint(Sketcher.Constraint("Coincident", 41, 2, 42, 1))
sketch3.addConstraint(Sketcher.Constraint("Coincident", 42, 2, 43, 1))
sketch3.addConstraint(Sketcher.Constraint("Coincident", 43, 2, 40, 1))
sketch3.addConstraint(Sketcher.Constraint("Coincident", 44, 2, 45, 1))
sketch3.addConstraint(Sketcher.Constraint("Coincident", 45, 2, 46, 1))
sketch3.addConstraint(Sketcher.Constraint("Coincident", 46, 2, 47, 1))
sketch3.addConstraint(Sketcher.Constraint("Coincident", 47, 2, 44, 1))
sketch3.addConstraint(Sketcher.Constraint("Coincident", 48, 2, 49, 1))
sketch3.addConstraint(Sketcher.Constraint("Coincident", 49, 2, 50, 1))
sketch3.addConstraint(Sketcher.Constraint("Coincident", 50, 2, 51, 1))
sketch3.addConstraint(Sketcher.Constraint("Coincident", 51, 2, 48, 1))
sketch3.addConstraint(Sketcher.Constraint("Coincident", 52, 2, 53, 1))
sketch3.addConstraint(Sketcher.Constraint("Coincident", 53, 2, 54, 1))
sketch3.addConstraint(Sketcher.Constraint("Coincident", 54, 2, 55, 1))
sketch3.addConstraint(Sketcher.Constraint("Coincident", 55, 2, 52, 1))
sketch3.addConstraint(Sketcher.Constraint("Coincident", 56, 2, 57, 1))
sketch3.addConstraint(Sketcher.Constraint("Coincident", 57, 2, 58, 1))
sketch3.addConstraint(Sketcher.Constraint("Coincident", 58, 2, 59, 1))
sketch3.addConstraint(Sketcher.Constraint("Coincident", 59, 2, 56, 1))
sketch3.addConstraint(Sketcher.Constraint("Horizontal", 0))
sketch3.addConstraint(Sketcher.Constraint("Vertical", 1))
sketch3.addConstraint(Sketcher.Constraint("Horizontal", 2))
sketch3.addConstraint(Sketcher.Constraint("Vertical", 3))
sketch3.addConstraint(Sketcher.Constraint("Horizontal", 4))
sketch3.addConstraint(Sketcher.Constraint("Vertical", 5))
sketch3.addConstraint(Sketcher.Constraint("Horizontal", 6))
sketch3.addConstraint(Sketcher.Constraint("Vertical", 7))
sketch3.addConstraint(Sketcher.Constraint("Vertical", 8))
sketch3.addConstraint(Sketcher.Constraint("Horizontal", 9))
sketch3.addConstraint(Sketcher.Constraint("Vertical", 10))
sketch3.addConstraint(Sketcher.Constraint("Horizontal", 11))
sketch3.addConstraint(Sketcher.Constraint("Vertical", 12))
sketch3.addConstraint(Sketcher.Constraint("Horizontal", 13))
sketch3.addConstraint(Sketcher.Constraint("Vertical", 14))
sketch3.addConstraint(Sketcher.Constraint("Horizontal", 15))
sketch3.addConstraint(Sketcher.Constraint("Vertical", 16))
sketch3.addConstraint(Sketcher.Constraint("Horizontal", 17))
sketch3.addConstraint(Sketcher.Constraint("Vertical", 18))
sketch3.addConstraint(Sketcher.Constraint("Horizontal", 19))
sketch3.addConstraint(Sketcher.Constraint("Vertical", 20))
sketch3.addConstraint(Sketcher.Constraint("Horizontal", 21))
sketch3.addConstraint(Sketcher.Constraint("Vertical", 22))
sketch3.addConstraint(Sketcher.Constraint("Horizontal", 23))
sketch3.addConstraint(Sketcher.Constraint("Vertical", 24))
sketch3.addConstraint(Sketcher.Constraint("Horizontal", 25))
sketch3.addConstraint(Sketcher.Constraint("Vertical", 26))
sketch3.addConstraint(Sketcher.Constraint("Horizontal", 27))
sketch3.addConstraint(Sketcher.Constraint("Vertical", 28))
sketch3.addConstraint(Sketcher.Constraint("Horizontal", 29))
sketch3.addConstraint(Sketcher.Constraint("Vertical", 30))
sketch3.addConstraint(Sketcher.Constraint("Horizontal", 31))
sketch3.addConstraint(Sketcher.Constraint("Vertical", 32))
sketch3.addConstraint(Sketcher.Constraint("Horizontal", 33))
sketch3.addConstraint(Sketcher.Constraint("Vertical", 34))
sketch3.addConstraint(Sketcher.Constraint("Horizontal", 35))
sketch3.addConstraint(Sketcher.Constraint("Vertical", 36))
sketch3.addConstraint(Sketcher.Constraint("Horizontal", 37))
sketch3.addConstraint(Sketcher.Constraint("Vertical", 38))
sketch3.addConstraint(Sketcher.Constraint("Horizontal", 39))
sketch3.addConstraint(Sketcher.Constraint("Vertical", 40))
sketch3.addConstraint(Sketcher.Constraint("Horizontal", 41))
sketch3.addConstraint(Sketcher.Constraint("Vertical", 42))
sketch3.addConstraint(Sketcher.Constraint("Horizontal", 43))
sketch3.addConstraint(Sketcher.Constraint("Vertical", 44))
sketch3.addConstraint(Sketcher.Constraint("Horizontal", 45))
sketch3.addConstraint(Sketcher.Constraint("Vertical", 46))
sketch3.addConstraint(Sketcher.Constraint("Horizontal", 47))
sketch3.addConstraint(Sketcher.Constraint("Vertical", 48))
sketch3.addConstraint(Sketcher.Constraint("Horizontal", 49))
sketch3.addConstraint(Sketcher.Constraint("Vertical", 50))
sketch3.addConstraint(Sketcher.Constraint("Horizontal", 51))
sketch3.addConstraint(Sketcher.Constraint("Vertical", 52))
sketch3.addConstraint(Sketcher.Constraint("Horizontal", 53))
sketch3.addConstraint(Sketcher.Constraint("Vertical", 54))
sketch3.addConstraint(Sketcher.Constraint("Horizontal", 55))
sketch3.addConstraint(Sketcher.Constraint("Vertical", 56))
sketch3.addConstraint(Sketcher.Constraint("Horizontal", 57))
sketch3.addConstraint(Sketcher.Constraint("Vertical", 58))
sketch3.addConstraint(Sketcher.Constraint("Horizontal", 59))
sketch3.addConstraint(Sketcher.Constraint("Horizontal", 9, 2, 20, 2))
sketch3.addConstraint(Sketcher.Constraint("Horizontal", 11, 2, 22, 2))
sketch3.addConstraint(Sketcher.Constraint("Horizontal", 13, 2, 24, 2))
sketch3.addConstraint(Sketcher.Constraint("Horizontal", 15, 2, 26, 2))
sketch3.addConstraint(Sketcher.Constraint("Horizontal", 17, 2, 28, 2))
sketch3.addConstraint(Sketcher.Constraint("Horizontal", 19, 2, 30, 2))
sketch3.addConstraint(Sketcher.Constraint("Vertical", 11, 2, 12, 2))
sketch3.addConstraint(Sketcher.Constraint("Vertical", 10, 2, 13, 2))
sketch3.addConstraint(Sketcher.Constraint("Vertical", 15, 2, 16, 2))
sketch3.addConstraint(Sketcher.Constraint("Vertical", 14, 2, 17, 2))
sketch3.addConstraint(Sketcher.Constraint("Vertical", 23, 2, 24, 2))
sketch3.addConstraint(Sketcher.Constraint("Vertical", 22, 2, 25, 2))
sketch3.addConstraint(Sketcher.Constraint("Vertical", 27, 2, 28, 2))
sketch3.addConstraint(Sketcher.Constraint("Vertical", 26, 2, 29, 2))
sketch3.addConstraint(Sketcher.Constraint("Vertical", 31, 2, 32, 2))
sketch3.addConstraint(Sketcher.Constraint("Vertical", 30, 2, 33, 2))
sketch3.addConstraint(Sketcher.Constraint("Vertical", 35, 2, 36, 2))
sketch3.addConstraint(Sketcher.Constraint("Vertical", 34, 2, 37, 2))
sketch3.addConstraint(Sketcher.Constraint("Vertical", 43, 2, 44, 2))
sketch3.addConstraint(Sketcher.Constraint("Vertical", 42, 2, 45, 2))
sketch3.addConstraint(Sketcher.Constraint("Vertical", 47, 2, 48, 2))
sketch3.addConstraint(Sketcher.Constraint("Vertical", 46, 2, 49, 2))
sketch3.addConstraint(Sketcher.Constraint("Vertical", 51, 2, 52, 2))
sketch3.addConstraint(Sketcher.Constraint("Vertical", 50, 2, 53, 2))
sketch3.addConstraint(Sketcher.Constraint("Vertical", 55, 2, 56, 2))
sketch3.addConstraint(Sketcher.Constraint("Vertical", 54, 2, 57, 2))
sketch3.addConstraint(Sketcher.Constraint("Equal", 19, 21))
sketch3.addConstraint(Sketcher.Constraint("Equal", 39, 41))
sketch3.addConstraint(Sketcher.Constraint("Equal", 59, 8))
sketch3.addConstraint(Sketcher.Constraint("Equal", 10, 12))
sketch3.addConstraint(Sketcher.Constraint("Equal", 14, 16))
sketch3.addConstraint(Sketcher.Constraint("Equal", 30, 32))
sketch3.addConstraint(Sketcher.Constraint("Equal", 34, 36))
sketch3.addConstraint(Sketcher.Constraint("Equal", 38, 40))
sketch3.addConstraint(Sketcher.Constraint("Equal", 42, 44))
sketch3.addConstraint(Sketcher.Constraint("Equal", 46, 48))
sketch3.addConstraint(Sketcher.Constraint("Equal", 50, 52))
sketch3.addConstraint(Sketcher.Constraint("Equal", 54, 56))
sketch3.addConstraint(Sketcher.Constraint("DistanceX", 9, 1, 9, 2, Q("25 mm")))
sketch3.addConstraint(Sketcher.Constraint("DistanceX", 20, 2, 8, 2, Q("60 mm")))
sketch3.addConstraint(Sketcher.Constraint("DistanceY", 8, 2, 12, 2, Q("48.33 mm")))
sketch3.addConstraint(Sketcher.Constraint("DistanceY", 12, 2, 16, 2, Q("48.33 mm")))
sketch3.addConstraint(Sketcher.Constraint("DistanceY", 40, 2, 44, 2, Q("48.33 mm")))
sketch3.addConstraint(Sketcher.Constraint("DistanceY", 44, 2, 48, 2, Q("48.33 mm")))
sketch3.addConstraint(Sketcher.Constraint("DistanceY", 28, 2, 32, 2, Q("48.333 mm")))
sketch3.addConstraint(Sketcher.Constraint("DistanceY", 48, 2, 52, 2, Q("48.333 mm")))
sketch3.addConstraint(Sketcher.Constraint("DistanceX", 0, 2, 0, 1, Q("178.87547 mm")))
sketch3.addConstraint(Sketcher.Constraint("DistanceY", 1, 2, 1, 1, Q("16.355991 mm")))
sketch3.addConstraint(Sketcher.Constraint("DistanceY", 5, 2, 5, 1, Q("702.599081 mm")))
sketch3.addConstraint(Sketcher.Constraint("DistanceY", 7, 1, 7, 2, Q("1246.20018 mm")))
sketch3.addConstraint(Sketcher.Constraint("DistanceY", 32, 2, 36, 2, Q("48.3333 mm")))
sketch3.addConstraint(Sketcher.Constraint("DistanceY", 52, 2, 56, 2, Q("48.3333 mm")))
sketch3.addConstraint(Sketcher.Constraint("DistanceX", 2, 1, 2, 2, Q("63.301158 mm")))
sketch3.addConstraint(Sketcher.Constraint("DistanceX", 4, 2, 4, 1, Q("62.811244 mm")))
sketch3.addConstraint(Sketcher.Constraint("DistanceY", 3, 2, -1, 1, Q("301.902841 mm")))
sketch3.addConstraint(Sketcher.Constraint("DistanceX", -1, 1, 4, 2, Q("32.980152 mm")))
sketch3.addConstraint(Sketcher.Constraint("DistanceX", 3, 2, 8, 2, Q("66.985519 mm")))
sketch3.addConstraint(Sketcher.Constraint("DistanceY", 3, 2, 8, 2, Q("53.675739 mm")))
sketch3.addConstraint(Sketcher.Constraint("DistanceX", 36, 2, 40, 2, Q("0.446841 mm")))
sketch3.addConstraint(Sketcher.Constraint("DistanceY", 36, 2, 40, 2, Q("48.32572 mm")))
pad3 = body.newObject("PartDesign::Pad", "Pad002")
pad3.Profile = sketch3
pad3.Length = 2

# Sketch on XY plane
sketch4 = body.newObject("Sketcher::SketchObject", "Sketch003")
sketch4.AttachmentSupport = (doc.getObject("XY_Plane"), [""])
sketch4.MapMode = "FlatFace"
sketch4.addGeometry(Part.LineSegment(Vector(41, 185, 0), Vector(41, 161, 0)), False)
sketch4.addGeometry(Part.LineSegment(Vector(41, 161, 0), Vector(85, 161, 0)), False)
sketch4.addGeometry(Part.LineSegment(Vector(85, 161, 0), Vector(85, 185, 0)), False)
sketch4.addGeometry(Part.LineSegment(Vector(85, 185, 0), Vector(41, 185, 0)), False)
sketch4.addGeometry(Part.LineSegment(Vector(42, 87, 0), Vector(42, 64, 0)), False)
sketch4.addGeometry(Part.LineSegment(Vector(42, 64, 0), Vector(87, 64, 0)), False)
sketch4.addGeometry(Part.LineSegment(Vector(87, 64, 0), Vector(87, 87, 0)), False)
sketch4.addGeometry(Part.LineSegment(Vector(87, 87, 0), Vector(42, 87, 0)), False)
sketch4.addGeometry(Part.LineSegment(Vector(42, -9, 0), Vector(42, -33, 0)), False)
sketch4.addGeometry(Part.LineSegment(Vector(42, -33, 0), Vector(87, -33, 0)), False)
sketch4.addGeometry(Part.LineSegment(Vector(87, -33, 0), Vector(87, -9, 0)), False)
sketch4.addGeometry(Part.LineSegment(Vector(87, -9, 0), Vector(42, -9, 0)), False)
sketch4.addGeometry(Part.LineSegment(Vector(42, -58, 0), Vector(42, -81, 0)), False)
sketch4.addGeometry(Part.LineSegment(Vector(42, -81, 0), Vector(87, -81, 0)), False)
sketch4.addGeometry(Part.LineSegment(Vector(87, -81, 0), Vector(87, -58, 0)), False)
sketch4.addGeometry(Part.LineSegment(Vector(87, -58, 0), Vector(42, -58, 0)), False)
sketch4.addGeometry(Part.LineSegment(Vector(42, -106, 0), Vector(42, -130, 0)), False)
sketch4.addGeometry(Part.LineSegment(Vector(42, -130, 0), Vector(87, -130, 0)), False)
sketch4.addGeometry(Part.LineSegment(Vector(87, -130, 0), Vector(87, -106, 0)), False)
sketch4.addGeometry(Part.LineSegment(Vector(87, -106, 0), Vector(42, -106, 0)), False)
sketch4.addGeometry(Part.LineSegment(Vector(41, -152, 0), Vector(41, -176, 0)), False)
sketch4.addGeometry(Part.LineSegment(Vector(41, -176, 0), Vector(85, -176, 0)), False)
sketch4.addGeometry(Part.LineSegment(Vector(85, -176, 0), Vector(85, -152, 0)), False)
sketch4.addGeometry(Part.LineSegment(Vector(85, -152, 0), Vector(41, -152, 0)), False)
sketch4.addGeometry(Part.LineSegment(Vector(41, -198, 0), Vector(41, -222, 0)), False)
sketch4.addGeometry(Part.LineSegment(Vector(41, -222, 0), Vector(85, -222, 0)), False)
sketch4.addGeometry(Part.LineSegment(Vector(85, -222, 0), Vector(85, -198, 0)), False)
sketch4.addGeometry(Part.LineSegment(Vector(85, -198, 0), Vector(41, -198, 0)), False)
sketch4.addGeometry(Part.LineSegment(Vector(42, 40, 0), Vector(42, 16, 0)), False)
sketch4.addGeometry(Part.LineSegment(Vector(42, 16, 0), Vector(87, 16, 0)), False)
sketch4.addGeometry(Part.LineSegment(Vector(87, 16, 0), Vector(87, 40, 0)), False)
sketch4.addGeometry(Part.LineSegment(Vector(87, 40, 0), Vector(42, 40, 0)), False)
sketch4.addGeometry(Part.LineSegment(Vector(42, 136, 0), Vector(42, 112, 0)), False)
sketch4.addGeometry(Part.LineSegment(Vector(42, 112, 0), Vector(87, 112, 0)), False)
sketch4.addGeometry(Part.LineSegment(Vector(87, 112, 0), Vector(87, 136, 0)), False)
sketch4.addGeometry(Part.LineSegment(Vector(87, 136, 0), Vector(42, 136, 0)), False)
sketch4.addGeometry(Part.LineSegment(Vector(42, -250, 0), Vector(42, -274, 0)), False)
sketch4.addGeometry(Part.LineSegment(Vector(42, -274, 0), Vector(87, -274, 0)), False)
sketch4.addGeometry(Part.LineSegment(Vector(87, -274, 0), Vector(87, -250, 0)), False)
sketch4.addGeometry(Part.LineSegment(Vector(87, -250, 0), Vector(42, -250, 0)), False)
sketch4.addConstraint(Sketcher.Constraint("Coincident", 0, 2, 1, 1))
sketch4.addConstraint(Sketcher.Constraint("Coincident", 1, 2, 2, 1))
sketch4.addConstraint(Sketcher.Constraint("Coincident", 2, 2, 3, 1))
sketch4.addConstraint(Sketcher.Constraint("Coincident", 3, 2, 0, 1))
sketch4.addConstraint(Sketcher.Constraint("Coincident", 4, 2, 5, 1))
sketch4.addConstraint(Sketcher.Constraint("Coincident", 5, 2, 6, 1))
sketch4.addConstraint(Sketcher.Constraint("Coincident", 6, 2, 7, 1))
sketch4.addConstraint(Sketcher.Constraint("Coincident", 7, 2, 4, 1))
sketch4.addConstraint(Sketcher.Constraint("Coincident", 8, 2, 9, 1))
sketch4.addConstraint(Sketcher.Constraint("Coincident", 9, 2, 10, 1))
sketch4.addConstraint(Sketcher.Constraint("Coincident", 10, 2, 11, 1))
sketch4.addConstraint(Sketcher.Constraint("Coincident", 11, 2, 8, 1))
sketch4.addConstraint(Sketcher.Constraint("Coincident", 12, 2, 13, 1))
sketch4.addConstraint(Sketcher.Constraint("Coincident", 13, 2, 14, 1))
sketch4.addConstraint(Sketcher.Constraint("Coincident", 14, 2, 15, 1))
sketch4.addConstraint(Sketcher.Constraint("Coincident", 15, 2, 12, 1))
sketch4.addConstraint(Sketcher.Constraint("Coincident", 16, 2, 17, 1))
sketch4.addConstraint(Sketcher.Constraint("Coincident", 17, 2, 18, 1))
sketch4.addConstraint(Sketcher.Constraint("Coincident", 18, 2, 19, 1))
sketch4.addConstraint(Sketcher.Constraint("Coincident", 19, 2, 16, 1))
sketch4.addConstraint(Sketcher.Constraint("Coincident", 20, 2, 21, 1))
sketch4.addConstraint(Sketcher.Constraint("Coincident", 21, 2, 22, 1))
sketch4.addConstraint(Sketcher.Constraint("Coincident", 22, 2, 23, 1))
sketch4.addConstraint(Sketcher.Constraint("Coincident", 23, 2, 20, 1))
sketch4.addConstraint(Sketcher.Constraint("Coincident", 24, 2, 25, 1))
sketch4.addConstraint(Sketcher.Constraint("Coincident", 25, 2, 26, 1))
sketch4.addConstraint(Sketcher.Constraint("Coincident", 26, 2, 27, 1))
sketch4.addConstraint(Sketcher.Constraint("Coincident", 27, 2, 24, 1))
sketch4.addConstraint(Sketcher.Constraint("Coincident", 28, 2, 29, 1))
sketch4.addConstraint(Sketcher.Constraint("Coincident", 29, 2, 30, 1))
sketch4.addConstraint(Sketcher.Constraint("Coincident", 30, 2, 31, 1))
sketch4.addConstraint(Sketcher.Constraint("Coincident", 31, 2, 28, 1))
sketch4.addConstraint(Sketcher.Constraint("Coincident", 32, 2, 33, 1))
sketch4.addConstraint(Sketcher.Constraint("Coincident", 33, 2, 34, 1))
sketch4.addConstraint(Sketcher.Constraint("Coincident", 34, 2, 35, 1))
sketch4.addConstraint(Sketcher.Constraint("Coincident", 35, 2, 32, 1))
sketch4.addConstraint(Sketcher.Constraint("Coincident", 36, 2, 37, 1))
sketch4.addConstraint(Sketcher.Constraint("Coincident", 37, 2, 38, 1))
sketch4.addConstraint(Sketcher.Constraint("Coincident", 38, 2, 39, 1))
sketch4.addConstraint(Sketcher.Constraint("Coincident", 39, 2, 36, 1))
sketch4.addConstraint(Sketcher.Constraint("Vertical", 0))
sketch4.addConstraint(Sketcher.Constraint("Horizontal", 1))
sketch4.addConstraint(Sketcher.Constraint("Vertical", 2))
sketch4.addConstraint(Sketcher.Constraint("Horizontal", 3))
sketch4.addConstraint(Sketcher.Constraint("Vertical", 4))
sketch4.addConstraint(Sketcher.Constraint("Horizontal", 5))
sketch4.addConstraint(Sketcher.Constraint("Vertical", 6))
sketch4.addConstraint(Sketcher.Constraint("Horizontal", 7))
sketch4.addConstraint(Sketcher.Constraint("Vertical", 8))
sketch4.addConstraint(Sketcher.Constraint("Horizontal", 9))
sketch4.addConstraint(Sketcher.Constraint("Vertical", 10))
sketch4.addConstraint(Sketcher.Constraint("Horizontal", 11))
sketch4.addConstraint(Sketcher.Constraint("Vertical", 12))
sketch4.addConstraint(Sketcher.Constraint("Horizontal", 13))
sketch4.addConstraint(Sketcher.Constraint("Vertical", 14))
sketch4.addConstraint(Sketcher.Constraint("Horizontal", 15))
sketch4.addConstraint(Sketcher.Constraint("Vertical", 16))
sketch4.addConstraint(Sketcher.Constraint("Horizontal", 17))
sketch4.addConstraint(Sketcher.Constraint("Vertical", 18))
sketch4.addConstraint(Sketcher.Constraint("Horizontal", 19))
sketch4.addConstraint(Sketcher.Constraint("Vertical", 20))
sketch4.addConstraint(Sketcher.Constraint("Horizontal", 21))
sketch4.addConstraint(Sketcher.Constraint("Vertical", 22))
sketch4.addConstraint(Sketcher.Constraint("Horizontal", 23))
sketch4.addConstraint(Sketcher.Constraint("Vertical", 24))
sketch4.addConstraint(Sketcher.Constraint("Horizontal", 25))
sketch4.addConstraint(Sketcher.Constraint("Vertical", 26))
sketch4.addConstraint(Sketcher.Constraint("Horizontal", 27))
sketch4.addConstraint(Sketcher.Constraint("Vertical", 28))
sketch4.addConstraint(Sketcher.Constraint("Horizontal", 29))
sketch4.addConstraint(Sketcher.Constraint("Vertical", 30))
sketch4.addConstraint(Sketcher.Constraint("Horizontal", 31))
sketch4.addConstraint(Sketcher.Constraint("Vertical", 32))
sketch4.addConstraint(Sketcher.Constraint("Horizontal", 33))
sketch4.addConstraint(Sketcher.Constraint("Vertical", 34))
sketch4.addConstraint(Sketcher.Constraint("Horizontal", 35))
sketch4.addConstraint(Sketcher.Constraint("Vertical", 36))
sketch4.addConstraint(Sketcher.Constraint("Horizontal", 37))
sketch4.addConstraint(Sketcher.Constraint("Vertical", 38))
sketch4.addConstraint(Sketcher.Constraint("Horizontal", 39))
sketch4.addConstraint(Sketcher.Constraint("Vertical", 7, 2, 8, 2))
sketch4.addConstraint(Sketcher.Constraint("Vertical", 6, 2, 9, 2))
sketch4.addConstraint(Sketcher.Constraint("Vertical", 11, 2, 12, 2))
sketch4.addConstraint(Sketcher.Constraint("Vertical", 10, 2, 13, 2))
sketch4.addConstraint(Sketcher.Constraint("Vertical", 15, 2, 16, 2))
sketch4.addConstraint(Sketcher.Constraint("Vertical", 14, 2, 17, 2))
sketch4.addConstraint(Sketcher.Constraint("Vertical", 23, 2, 24, 2))
sketch4.addConstraint(Sketcher.Constraint("Vertical", 22, 2, 25, 2))
sketch4.addConstraint(Sketcher.Constraint("Vertical", 19, 2, 28, 2))
sketch4.addConstraint(Sketcher.Constraint("Vertical", 18, 2, 29, 2))
sketch4.addConstraint(Sketcher.Constraint("Vertical", 31, 2, 32, 2))
sketch4.addConstraint(Sketcher.Constraint("Vertical", 30, 2, 33, 2))
sketch4.addConstraint(Sketcher.Constraint("Vertical", 35, 2, 36, 2))
sketch4.addConstraint(Sketcher.Constraint("Vertical", 34, 2, 37, 2))
sketch4.addConstraint(Sketcher.Constraint("Equal", 3, 5))
sketch4.addConstraint(Sketcher.Constraint("Equal", 19, 21))
sketch4.addConstraint(Sketcher.Constraint("Equal", 2, 4))
sketch4.addConstraint(Sketcher.Constraint("Equal", 6, 8))
sketch4.addConstraint(Sketcher.Constraint("Equal", 10, 12))
sketch4.addConstraint(Sketcher.Constraint("Equal", 14, 16))
sketch4.addConstraint(Sketcher.Constraint("Equal", 18, 20))
sketch4.addConstraint(Sketcher.Constraint("Equal", 22, 24))
sketch4.addConstraint(Sketcher.Constraint("Equal", 26, 28))
sketch4.addConstraint(Sketcher.Constraint("Equal", 30, 32))
sketch4.addConstraint(Sketcher.Constraint("Equal", 34, 36))
sketch4.addConstraint(Sketcher.Constraint("DistanceY", 12, 2, -1, 1, Q("81.323099 mm")))
sketch4.addConstraint(Sketcher.Constraint("DistanceY", 24, 2, 16, 2, Q("91.660501 mm")))
sketch4.addConstraint(Sketcher.Constraint("DistanceX", 1, 1, 1, 2, Q("44.395065 mm")))
sketch4.addConstraint(Sketcher.Constraint("DistanceY", 0, 2, 0, 1, Q("23.654323 mm")))
sketch4.addConstraint(Sketcher.Constraint("DistanceX", -1, 1, 0, 2, Q("40.772948 mm")))
sketch4.addConstraint(Sketcher.Constraint("DistanceY", -1, 1, 0, 2, Q("161.133711 mm")))
sketch4.addConstraint(Sketcher.Constraint("DistanceX", -1, 1, 4, 2, Q("42.229739 mm")))
sketch4.addConstraint(Sketcher.Constraint("DistanceY", -1, 1, 4, 2, Q("63.559629 mm")))
sketch4.addConstraint(Sketcher.Constraint("DistanceY", 8, 2, -1, 1, Q("32.536058 mm")))
sketch4.addConstraint(Sketcher.Constraint("DistanceY", 16, 2, -1, 1, Q("130.110141 mm")))
sketch4.addConstraint(Sketcher.Constraint("DistanceY", 20, 2, -1, 1, Q("175.940391 mm")))
sketch4.addConstraint(Sketcher.Constraint("DistanceX", -1, 1, 21, 2, Q("85.146409 mm")))
sketch4.addConstraint(Sketcher.Constraint("DistanceY", -1, 1, 32, 2, Q("112.34667 mm")))
sketch4.addConstraint(Sketcher.Constraint("DistanceY", 38, 2, -1, 1, Q("249.860151 mm")))
sketch4.addConstraint(Sketcher.Constraint("DistanceY", 11, 2, 28, 2, Q("25.132718 mm")))
pad4 = body.newObject("PartDesign::Pad", "Pad003")
pad4.Profile = sketch4
pad4.Length = 1

doc.recompute()
